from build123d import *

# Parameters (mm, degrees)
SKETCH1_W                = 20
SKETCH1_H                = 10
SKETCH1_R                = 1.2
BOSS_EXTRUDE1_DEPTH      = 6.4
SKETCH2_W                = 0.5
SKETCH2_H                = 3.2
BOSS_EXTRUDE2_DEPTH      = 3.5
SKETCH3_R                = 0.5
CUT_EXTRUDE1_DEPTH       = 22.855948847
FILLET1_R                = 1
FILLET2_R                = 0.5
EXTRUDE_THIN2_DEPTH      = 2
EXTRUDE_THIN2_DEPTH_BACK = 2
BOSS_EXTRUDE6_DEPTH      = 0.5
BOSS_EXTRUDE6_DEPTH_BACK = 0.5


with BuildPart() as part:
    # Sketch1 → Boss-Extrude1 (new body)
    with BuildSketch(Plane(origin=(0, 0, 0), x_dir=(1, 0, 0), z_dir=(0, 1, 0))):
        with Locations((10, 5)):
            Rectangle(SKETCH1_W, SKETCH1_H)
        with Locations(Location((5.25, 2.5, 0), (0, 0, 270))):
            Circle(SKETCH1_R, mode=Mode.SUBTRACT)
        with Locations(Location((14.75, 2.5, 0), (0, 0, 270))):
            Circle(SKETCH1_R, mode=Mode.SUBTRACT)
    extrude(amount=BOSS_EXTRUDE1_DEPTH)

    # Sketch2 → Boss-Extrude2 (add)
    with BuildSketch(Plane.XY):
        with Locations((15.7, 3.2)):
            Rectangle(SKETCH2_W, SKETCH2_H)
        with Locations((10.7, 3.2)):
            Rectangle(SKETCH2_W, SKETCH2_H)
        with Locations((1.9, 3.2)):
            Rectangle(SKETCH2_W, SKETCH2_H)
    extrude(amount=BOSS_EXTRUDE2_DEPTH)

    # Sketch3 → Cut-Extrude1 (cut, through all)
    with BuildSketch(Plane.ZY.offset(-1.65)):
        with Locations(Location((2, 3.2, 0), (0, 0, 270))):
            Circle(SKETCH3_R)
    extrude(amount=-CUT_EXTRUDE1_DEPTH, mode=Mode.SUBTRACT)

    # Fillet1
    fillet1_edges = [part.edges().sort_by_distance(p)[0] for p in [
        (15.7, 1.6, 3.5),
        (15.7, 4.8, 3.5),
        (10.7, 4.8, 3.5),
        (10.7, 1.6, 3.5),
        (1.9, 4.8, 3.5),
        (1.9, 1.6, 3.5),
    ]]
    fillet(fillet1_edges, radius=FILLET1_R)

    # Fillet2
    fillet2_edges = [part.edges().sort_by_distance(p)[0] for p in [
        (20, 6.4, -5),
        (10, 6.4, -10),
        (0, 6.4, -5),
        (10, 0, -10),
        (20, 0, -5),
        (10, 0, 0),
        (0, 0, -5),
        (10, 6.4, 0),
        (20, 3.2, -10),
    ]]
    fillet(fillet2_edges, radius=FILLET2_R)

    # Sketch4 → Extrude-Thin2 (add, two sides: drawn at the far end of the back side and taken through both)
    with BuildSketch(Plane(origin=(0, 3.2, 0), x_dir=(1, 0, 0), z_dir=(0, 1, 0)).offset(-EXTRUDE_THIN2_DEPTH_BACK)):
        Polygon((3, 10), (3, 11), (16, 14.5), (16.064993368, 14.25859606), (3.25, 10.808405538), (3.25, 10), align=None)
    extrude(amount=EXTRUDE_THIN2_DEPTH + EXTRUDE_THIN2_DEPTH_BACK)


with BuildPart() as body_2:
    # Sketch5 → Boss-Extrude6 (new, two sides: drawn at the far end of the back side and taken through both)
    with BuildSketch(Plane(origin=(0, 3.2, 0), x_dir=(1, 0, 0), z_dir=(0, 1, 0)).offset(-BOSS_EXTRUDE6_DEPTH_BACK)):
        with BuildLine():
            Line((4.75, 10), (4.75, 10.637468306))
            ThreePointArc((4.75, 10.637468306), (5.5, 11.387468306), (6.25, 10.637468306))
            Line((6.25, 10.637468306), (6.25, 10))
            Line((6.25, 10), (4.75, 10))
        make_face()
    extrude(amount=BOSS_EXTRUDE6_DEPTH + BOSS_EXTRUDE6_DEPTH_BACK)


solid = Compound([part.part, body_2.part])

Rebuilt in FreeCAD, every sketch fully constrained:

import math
import FreeCAD as App
import Part
import Sketcher

V = App.Vector
Q = App.Units.Quantity


def edges_at(feature, points):
    """Names of the edges that pass closest to the given points."""
    edges = feature.Shape.Edges
    near = lambda p: min(range(len(edges)), key=lambda i: edges[i].distToShape(Part.Vertex(*p))[0])
    return sorted({f"Edge{near(p) + 1}" for p in points})

doc = App.newDocument("Part")
body = doc.addObject("PartDesign::Body", "Body")

sketch1 = body.newObject("Sketcher::SketchObject", "Sketch")
sketch1.AttachmentSupport = (doc.getObject("XZ_Plane"), [""])
sketch1.MapMode = "FlatFace"
sketch1.addGeometry([
    Part.LineSegment(V(0, -10, 0), V(0, 0, 0)),
    Part.LineSegment(V(0, 0, 0), V(20, 0, 0)),
    Part.LineSegment(V(20, 0, 0), V(20, -10, 0)),
    Part.LineSegment(V(20, -10, 0), V(0, -10, 0)),
    Part.Circle(V(5.2, -2.5, 0), V(0, 0, 1), 1.2),
    Part.Circle(V(14.8, -2.5, 0), V(0, 0, 1), 1.2),
], False)
sketch1.addConstraint([
    Sketcher.Constraint("Coincident", 0, 2, 1, 1),
    Sketcher.Constraint("Coincident", 1, 2, 2, 1),
    Sketcher.Constraint("Coincident", 2, 2, 3, 1),
    Sketcher.Constraint("Coincident", 3, 2, 0, 1),
    Sketcher.Constraint("Vertical", 0),
    Sketcher.Constraint("Horizontal", 1),
    Sketcher.Constraint("Vertical", 2),
    Sketcher.Constraint("Horizontal", 3),
    Sketcher.Constraint("Coincident", 0, 2, -1, 1),
    Sketcher.Constraint("Equal", 4, 5),
    Sketcher.Constraint("Horizontal", 4, 3, 5, 3),
    Sketcher.Constraint("Diameter", 4, Q("2.4 mm")),
    Sketcher.Constraint("DistanceX", 1, 1, 1, 2, Q("20 mm")),
    Sketcher.Constraint("DistanceY", 0, 1, 0, 2, Q("10 mm")),
    Sketcher.Constraint("DistanceY", 4, 3, -1, 1, Q("2.5 mm")),
    Sketcher.Constraint("DistanceX", 4, 3, 5, 3, Q("9.5 mm")),
    Sketcher.Constraint("DistanceX", -1, 1, 4, 3, Q("5.25 mm")),
])
pad1 = body.newObject("PartDesign::Pad", "Pad")
pad1.Profile = sketch1
pad1.Length = 6.4
pad1.Reversed = True

sketch2 = body.newObject("Sketcher::SketchObject", "Sketch001")
sketch2.AttachmentSupport = (doc.getObject("XY_Plane"), [""])
sketch2.MapMode = "FlatFace"
sketch2.addGeometry([
    Part.LineSegment(V(15.4, 4.8, 0), V(15.4, 1.6, 0)),
    Part.LineSegment(V(15.4, 1.6, 0), V(15.9, 1.6, 0)),
    Part.LineSegment(V(15.9, 1.6, 0), V(15.9, 4.8, 0)),
    Part.LineSegment(V(15.9, 4.8, 0), V(15.4, 4.8, 0)),
    Part.LineSegment(V(10.4, 4.8, 0), V(10.4, 1.6, 0)),
    Part.LineSegment(V(10.4, 1.6, 0), V(10.9, 1.6, 0)),
    Part.LineSegment(V(10.9, 1.6, 0), V(10.9, 4.8, 0)),
    Part.LineSegment(V(10.9, 4.8, 0), V(10.4, 4.8, 0)),
    Part.LineSegment(V(1.6, 4.8, 0), V(1.6, 1.6, 0)),
    Part.LineSegment(V(1.6, 1.6, 0), V(2.1, 1.6, 0)),
    Part.LineSegment(V(2.1, 1.6, 0), V(2.1, 4.8, 0)),
    Part.LineSegment(V(2.1, 4.8, 0), V(1.6, 4.8, 0)),
], False)
sketch2.addConstraint([
    Sketcher.Constraint("Coincident", 0, 2, 1, 1),
    Sketcher.Constraint("Coincident", 1, 2, 2, 1),
    Sketcher.Constraint("Coincident", 2, 2, 3, 1),
    Sketcher.Constraint("Coincident", 3, 2, 0, 1),
    Sketcher.Constraint("Coincident", 4, 2, 5, 1),
    Sketcher.Constraint("Coincident", 5, 2, 6, 1),
    Sketcher.Constraint("Coincident", 6, 2, 7, 1),
    Sketcher.Constraint("Coincident", 7, 2, 4, 1),
    Sketcher.Constraint("Coincident", 8, 2, 9, 1),
    Sketcher.Constraint("Coincident", 9, 2, 10, 1),
    Sketcher.Constraint("Coincident", 10, 2, 11, 1),
    Sketcher.Constraint("Coincident", 11, 2, 8, 1),
    Sketcher.Constraint("Vertical", 0),
    Sketcher.Constraint("Horizontal", 1),
    Sketcher.Constraint("Vertical", 2),
    Sketcher.Constraint("Horizontal", 3),
    Sketcher.Constraint("Vertical", 4),
    Sketcher.Constraint("Horizontal", 5),
    Sketcher.Constraint("Vertical", 6),
    Sketcher.Constraint("Horizontal", 7),
    Sketcher.Constraint("Vertical", 8),
    Sketcher.Constraint("Horizontal", 9),
    Sketcher.Constraint("Vertical", 10),
    Sketcher.Constraint("Horizontal", 11),
    Sketcher.Constraint("Horizontal", 1, 2, 4, 2),
    Sketcher.Constraint("Horizontal", 3, 2, 6, 2),
    Sketcher.Constraint("Horizontal", 5, 2, 8, 2),
    Sketcher.Constraint("Horizontal", 7, 2, 10, 2),
    Sketcher.Constraint("Equal", 3, 5),
    Sketcher.Constraint("Equal", 7, 9),
    Sketcher.Constraint("DistanceX", 1, 1, 1, 2, Q("0.5 mm")),
    Sketcher.Constraint("DistanceY", 0, 2, 0, 1, Q("3.2 mm")),
    Sketcher.Constraint("DistanceX", 4, 2, 0, 2, Q("5 mm")),
    Sketcher.Constraint("DistanceY", -1, 1, 0, 2, Q("1.6 mm")),
    Sketcher.Constraint("DistanceX", 8, 2, 4, 2, Q("8.8 mm")),
    Sketcher.Constraint("DistanceX", -1, 1, 0, 2, Q("15.45 mm")),
])
pad2 = body.newObject("PartDesign::Pad", "Pad001")
pad2.Profile = sketch2
pad2.Length = 3.5

sketch3 = body.newObject("Sketcher::SketchObject", "Sketch002")
sketch3.AttachmentSupport = (doc.getObject("YZ_Plane"), [""])
sketch3.MapMode = "FlatFace"
sketch3.AttachmentOffset = App.Placement(V(0, 0, 1.65), App.Rotation())
sketch3.addGeometry(Part.Circle(V(3.2, 2, 0), V(0, 0, 1), 0.5), False)
sketch3.addConstraint([
    Sketcher.Constraint("Diameter", 0, Q("1 mm")),
    Sketcher.Constraint("DistanceY", -1, 1, 0, 3, Q("2 mm")),
    Sketcher.Constraint("DistanceX", -1, 1, 0, 3, Q("3.2 mm")),
])
pocket1 = body.newObject("PartDesign::Pocket", "Pocket")
pocket1.Profile = sketch3
pocket1.Type = "ThroughAll"
pocket1.Reversed = True
doc.recompute()

fillet = body.newObject("PartDesign::Fillet", "Fillet")
fillet.Base = (pocket1, edges_at(pocket1, [
    (15.7, 1.6, 3.5),
    (15.7, 4.8, 3.5),
    (10.7, 4.8, 3.5),
    (10.7, 1.6, 3.5),
    (1.9, 4.8, 3.5),
    (1.9, 1.6, 3.5),
]))
fillet.Radius = 1
doc.recompute()

fillet2 = body.newObject("PartDesign::Fillet", "Fillet001")
fillet2.Base = (fillet, edges_at(fillet, [
    (20, 6.4, -5),
    (10, 6.4, -10),
    (0, 6.4, -5),
    (10, 0, -10),
    (20, 0, -5),
    (10, 0, 0),
    (0, 0, -5),
    (10, 6.4, 0),
    (20, 3.2, -10),
]))
fillet2.Radius = 0.5

sketch4 = body.newObject("Sketcher::SketchObject", "Sketch003")
sketch4.AttachmentSupport = (doc.getObject("XZ_Plane"), [""])
sketch4.MapMode = "FlatFace"
sketch4.AttachmentOffset = App.Placement(V(0, 0, -3.2), App.Rotation())
sketch4.addGeometry([
    Part.LineSegment(V(3, -11, 0), V(3, -10, 0)),
    Part.LineSegment(V(3, -10, 0), V(3.25, -10, 0)),
    Part.LineSegment(V(3.25, -10, 0), V(3.25, -10.81, 0)),
    Part.LineSegment(V(3.25, -10.81, 0), V(16.06, -14.26, 0)),
    Part.LineSegment(V(16.06, -14.26, 0), V(16, -14.5, 0)),
    Part.LineSegment(V(16, -14.5, 0), V(3, -11, 0)),
], False)
sketch4.addConstraint([
    Sketcher.Constraint("Coincident", 0, 2, 1, 1),
    Sketcher.Constraint("Coincident", 1, 2, 2, 1),
    Sketcher.Constraint("Coincident", 2, 2, 3, 1),
    Sketcher.Constraint("Coincident", 3, 2, 4, 1),
    Sketcher.Constraint("Coincident", 4, 2, 5, 1),
    Sketcher.Constraint("Coincident", 5, 2, 0, 1),
    Sketcher.Constraint("Vertical", 0),
    Sketcher.Constraint("Horizontal", 1),
    Sketcher.Constraint("Vertical", 2),
    Sketcher.Constraint("Perpendicular", 3, 4),
    Sketcher.Constraint("Perpendicular", 4, 5),
    Sketcher.Constraint("DistanceY", 0, 1, 0, 2, Q("1 mm")),
    Sketcher.Constraint("DistanceX", -1, 1, 0, 2, Q("3 mm")),
    Sketcher.Constraint("DistanceY", 0, 2, -1, 1, Q("10 mm")),
    Sketcher.Constraint("DistanceX", -1, 1, 4, 2, Q("16 mm")),
    Sketcher.Constraint("DistanceX", 1, 1, 1, 2, Q("0.25 mm")),
    Sketcher.Constraint("DistanceY", 4, 2, -1, 1, Q("14.5 mm")),
    Sketcher.Constraint("Distance", 4, Q("0.25 mm")),
])
pad3 = body.newObject("PartDesign::Pad", "Pad002")
pad3.Profile = sketch4
pad3.Type = "TwoLengths"
pad3.Length = 2
pad3.Length2 = 2
pad3.Reversed = True
body2 = doc.addObject("PartDesign::Body", "Body001")

sketch5 = body2.newObject("Sketcher::SketchObject", "Sketch004")
sketch5.AttachmentSupport = (doc.getObject("XZ_Plane001"), [""])
sketch5.MapMode = "FlatFace"
sketch5.AttachmentOffset = App.Placement(V(0, 0, -3.2), App.Rotation())
sketch5.addGeometry([
    Part.LineSegment(V(4.8, -10.6, 0), V(4.8, -10, 0)),
    Part.LineSegment(V(4.8, -10, 0), V(6.2, -10, 0)),
    Part.LineSegment(V(6.2, -10, 0), V(6.2, -10.6, 0)),
    Part.ArcOfCircle(Part.Circle(V(5.5, -10.6, 0), V(0, 0, 1), 0.8), math.radians(180), math.radians(360)),
], False)
sketch5.addConstraint([
    Sketcher.Constraint("Coincident", 0, 2, 1, 1),
    Sketcher.Constraint("Coincident", 1, 2, 2, 1),
    Sketcher.Constraint("Tangent", 2, 2, 3, 2),
    Sketcher.Constraint("Tangent", 3, 1, 0, 1),
    Sketcher.Constraint("Vertical", 0),
    Sketcher.Constraint("Horizontal", 1),
    Sketcher.Constraint("Vertical", 2),
    Sketcher.Constraint("Radius", 3, Q("0.75 mm")),
    Sketcher.Constraint("DistanceY", 0, 2, -1, 1, Q("10 mm")),
    Sketcher.Constraint("DistanceX", -1, 1, 3, 3, Q("5.5 mm")),
    Sketcher.Constraint("DistanceY", 0, 1, 0, 2, Q("0.637468 mm")),
])
pad4 = body2.newObject("PartDesign::Pad", "Pad003")
pad4.Profile = sketch5
pad4.Type = "TwoLengths"
pad4.Length = 0.5
pad4.Length2 = 0.5
pad4.Reversed = True

doc.recompute()
